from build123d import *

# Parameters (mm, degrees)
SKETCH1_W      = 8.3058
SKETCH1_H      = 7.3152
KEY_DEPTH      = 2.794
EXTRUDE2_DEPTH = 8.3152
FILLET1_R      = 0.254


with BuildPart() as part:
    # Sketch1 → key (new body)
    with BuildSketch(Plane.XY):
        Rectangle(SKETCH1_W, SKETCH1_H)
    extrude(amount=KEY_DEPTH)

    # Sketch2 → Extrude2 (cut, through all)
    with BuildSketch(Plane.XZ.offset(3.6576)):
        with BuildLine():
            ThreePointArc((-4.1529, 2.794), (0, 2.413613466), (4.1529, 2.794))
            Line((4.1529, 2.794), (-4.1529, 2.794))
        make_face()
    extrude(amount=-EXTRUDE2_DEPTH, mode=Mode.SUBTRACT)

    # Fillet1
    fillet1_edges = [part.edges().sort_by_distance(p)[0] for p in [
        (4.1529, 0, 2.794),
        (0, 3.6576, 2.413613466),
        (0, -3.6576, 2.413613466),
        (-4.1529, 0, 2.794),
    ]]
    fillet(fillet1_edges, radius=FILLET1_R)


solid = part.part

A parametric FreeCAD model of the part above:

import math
import FreeCAD as App
import Part
import Sketcher

V = App.Vector
Q = App.Units.Quantity


def edges_at(feature, points):
    """Names of the edges that pass closest to the given points."""
    edges = feature.Shape.Edges
    near = lambda p: min(range(len(edges)), key=lambda i: edges[i].distToShape(Part.Vertex(*p))[0])
    return sorted({f"Edge{near(p) + 1}" for p in points})


def add_polygon(sketch, points):
    """Adds a closed chain of lines whose ends are joined by coincident constraints."""
    first, n = sketch.GeometryCount, len(points)
    for a, b in zip(points, points[1:] + points[:1]):
        sketch.addGeometry(Part.LineSegment(App.Vector(*a, 0), App.Vector(*b, 0)), False)
    for i in range(n):
        sketch.addConstraint(Sketcher.Constraint("Coincident", first + i, 2, first + (i + 1) % n, 1))

doc = App.newDocument("Part")
body = doc.addObject("PartDesign::Body", "Body")

# Sketch on XY plane
sketch1 = doc.addObject("Sketcher::SketchObject", "Sketch")
body.addObject(sketch1)
sketch1.AttachmentSupport = (doc.XY_Plane, [""])
sketch1.MapMode = "FlatFace"
add_polygon(sketch1, [(-4, 4), (-4, -4), (4, -4), (4, 4)])  # lines 0-3
sketch1.addConstraint(Sketcher.Constraint("Vertical", 0))
sketch1.addConstraint(Sketcher.Constraint("Horizontal", 1))
sketch1.addConstraint(Sketcher.Constraint("Vertical", 2))
sketch1.addConstraint(Sketcher.Constraint("Horizontal", 3))
sketch1.addConstraint(Sketcher.Constraint("Symmetric", 0, 2, 2, 2, -1, 1))
sketch1.addConstraint(Sketcher.Constraint("DistanceX", 1, 1, 1, 2, Q("0.327 in")))
sketch1.addConstraint(Sketcher.Constraint("DistanceY", 0, 2, 0, 1, Q("0.288 in")))
pad1 = doc.addObject("PartDesign::Pad", "Pad")
body.addObject(pad1)
pad1.Profile = sketch1
pad1.Length = Q("0.11 in")

# Sketch on XZ plane
sketch2 = doc.addObject("Sketcher::SketchObject", "Sketch001")
body.addObject(sketch2)
sketch2.AttachmentSupport = (doc.XZ_Plane, [""])
sketch2.MapMode = "FlatFace"
sketch2.AttachmentOffset = App.Placement(V(0, 0, 0.144 * 25.4), App.Rotation())
sketch2.addGeometry(Part.ArcOfCircle(Part.Circle(V(0, 25, 0), V(0, 0, 1), 23), math.radians(-100), math.radians(-80)), False)
sketch2.addGeometry(Part.LineSegment(V(4, 3, 0), V(-4, 3, 0)), False)
sketch2.addConstraint(Sketcher.Constraint("Coincident", 0, 1, 1, 2))
sketch2.addConstraint(Sketcher.Constraint("Coincident", 1, 1, 0, 2))
sketch2.addConstraint(Sketcher.Constraint("Horizontal", 1))
sketch2.addConstraint(Sketcher.Constraint("PointOnObject", 0, 3, -2))
sketch2.addConstraint(Sketcher.Constraint("Radius", 0, Q("0.9 in")))
sketch2.addConstraint(Sketcher.Constraint("DistanceX", 1, 2, 1, 1, Q("0.327 in")))
sketch2.addConstraint(Sketcher.Constraint("DistanceY", -1, 1, 0, 1, Q("0.11 in")))
pocket1 = doc.addObject("PartDesign::Pocket", "Pocket")
body.addObject(pocket1)
pocket1.Profile = sketch2
pocket1.Type = "ThroughAll"
doc.recompute()

fillet = doc.addObject("PartDesign::Fillet", "Fillet")
body.addObject(fillet)
fillet.Base = (pocket1, edges_at(pocket1, [
    (4.153, 0, 2.794),
    (0, 3.658, 2.414),
    (0, -3.658, 2.414),
    (-4.153, 0, 2.794),
]))
fillet.Radius = Q("0.01 in")

doc.recompute()
